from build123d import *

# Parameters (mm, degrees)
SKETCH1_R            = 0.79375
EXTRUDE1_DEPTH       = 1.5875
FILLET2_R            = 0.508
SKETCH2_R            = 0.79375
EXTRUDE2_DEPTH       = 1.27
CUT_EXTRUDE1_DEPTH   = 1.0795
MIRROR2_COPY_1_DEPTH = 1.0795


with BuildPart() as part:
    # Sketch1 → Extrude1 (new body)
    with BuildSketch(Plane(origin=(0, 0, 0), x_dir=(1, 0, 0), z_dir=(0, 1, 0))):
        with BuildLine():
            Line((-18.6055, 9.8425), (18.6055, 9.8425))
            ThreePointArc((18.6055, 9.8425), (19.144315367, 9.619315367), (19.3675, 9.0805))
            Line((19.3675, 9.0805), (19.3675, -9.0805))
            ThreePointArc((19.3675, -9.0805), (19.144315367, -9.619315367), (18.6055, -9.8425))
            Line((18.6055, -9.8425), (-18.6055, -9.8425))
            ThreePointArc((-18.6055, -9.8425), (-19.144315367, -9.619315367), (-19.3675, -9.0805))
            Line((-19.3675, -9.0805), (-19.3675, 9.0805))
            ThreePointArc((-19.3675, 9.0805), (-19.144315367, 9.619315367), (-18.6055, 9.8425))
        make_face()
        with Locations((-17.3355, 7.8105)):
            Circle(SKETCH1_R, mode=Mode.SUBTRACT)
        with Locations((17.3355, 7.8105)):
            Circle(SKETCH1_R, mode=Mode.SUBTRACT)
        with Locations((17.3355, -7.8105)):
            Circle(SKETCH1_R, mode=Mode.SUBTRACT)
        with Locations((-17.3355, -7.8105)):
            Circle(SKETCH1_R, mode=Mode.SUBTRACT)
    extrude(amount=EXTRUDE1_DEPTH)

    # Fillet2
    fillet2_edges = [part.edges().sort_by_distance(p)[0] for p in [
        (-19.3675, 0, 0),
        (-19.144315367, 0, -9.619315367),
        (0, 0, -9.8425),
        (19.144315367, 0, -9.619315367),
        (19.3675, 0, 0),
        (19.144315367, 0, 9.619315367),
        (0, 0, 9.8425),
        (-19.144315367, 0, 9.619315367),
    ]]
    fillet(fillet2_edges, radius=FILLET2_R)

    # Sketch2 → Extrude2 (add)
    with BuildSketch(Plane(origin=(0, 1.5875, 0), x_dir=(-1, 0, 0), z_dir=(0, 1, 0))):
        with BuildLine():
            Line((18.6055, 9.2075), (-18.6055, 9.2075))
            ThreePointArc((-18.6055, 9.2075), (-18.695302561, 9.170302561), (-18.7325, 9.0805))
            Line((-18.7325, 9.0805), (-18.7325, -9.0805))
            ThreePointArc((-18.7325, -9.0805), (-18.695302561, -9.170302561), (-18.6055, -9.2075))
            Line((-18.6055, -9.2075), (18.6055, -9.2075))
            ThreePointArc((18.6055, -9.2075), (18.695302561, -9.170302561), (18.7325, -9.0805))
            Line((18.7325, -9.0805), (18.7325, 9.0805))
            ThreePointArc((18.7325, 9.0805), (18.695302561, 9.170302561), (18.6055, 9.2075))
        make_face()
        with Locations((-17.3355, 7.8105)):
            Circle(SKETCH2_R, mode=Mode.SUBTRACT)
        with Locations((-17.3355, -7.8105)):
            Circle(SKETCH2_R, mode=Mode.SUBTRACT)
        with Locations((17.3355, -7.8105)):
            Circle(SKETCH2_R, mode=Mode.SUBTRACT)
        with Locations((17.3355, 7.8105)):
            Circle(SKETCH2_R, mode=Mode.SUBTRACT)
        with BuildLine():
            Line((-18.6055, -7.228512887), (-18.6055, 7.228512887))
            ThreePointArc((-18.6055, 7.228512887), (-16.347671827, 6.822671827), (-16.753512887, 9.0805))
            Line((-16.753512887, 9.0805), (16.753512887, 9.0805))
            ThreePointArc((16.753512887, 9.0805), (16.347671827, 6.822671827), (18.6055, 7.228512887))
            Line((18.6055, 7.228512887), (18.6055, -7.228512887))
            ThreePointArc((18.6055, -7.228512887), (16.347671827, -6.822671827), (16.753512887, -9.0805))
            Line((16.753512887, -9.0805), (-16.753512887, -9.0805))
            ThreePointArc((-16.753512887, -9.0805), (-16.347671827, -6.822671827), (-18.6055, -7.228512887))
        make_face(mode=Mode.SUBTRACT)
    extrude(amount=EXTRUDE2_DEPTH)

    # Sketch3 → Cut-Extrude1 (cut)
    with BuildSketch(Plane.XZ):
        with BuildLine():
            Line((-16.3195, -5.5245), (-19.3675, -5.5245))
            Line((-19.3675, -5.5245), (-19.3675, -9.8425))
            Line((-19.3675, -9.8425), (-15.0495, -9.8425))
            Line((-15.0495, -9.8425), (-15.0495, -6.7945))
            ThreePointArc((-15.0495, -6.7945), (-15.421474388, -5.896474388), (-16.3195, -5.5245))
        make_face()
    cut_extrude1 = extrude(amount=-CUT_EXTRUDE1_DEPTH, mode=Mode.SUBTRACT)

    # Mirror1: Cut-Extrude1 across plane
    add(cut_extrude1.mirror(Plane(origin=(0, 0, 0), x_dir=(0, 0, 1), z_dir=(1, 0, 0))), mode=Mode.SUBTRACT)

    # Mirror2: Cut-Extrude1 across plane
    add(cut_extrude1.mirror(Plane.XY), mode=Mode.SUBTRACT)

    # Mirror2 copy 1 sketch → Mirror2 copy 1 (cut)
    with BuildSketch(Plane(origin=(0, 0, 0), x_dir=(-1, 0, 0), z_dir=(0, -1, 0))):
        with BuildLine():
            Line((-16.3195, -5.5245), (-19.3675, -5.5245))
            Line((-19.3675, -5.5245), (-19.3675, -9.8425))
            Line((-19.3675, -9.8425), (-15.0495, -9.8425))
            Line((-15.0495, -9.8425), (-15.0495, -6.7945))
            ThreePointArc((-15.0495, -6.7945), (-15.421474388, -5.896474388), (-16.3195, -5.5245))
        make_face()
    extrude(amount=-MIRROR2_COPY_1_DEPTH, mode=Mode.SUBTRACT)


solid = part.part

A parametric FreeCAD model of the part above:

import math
import FreeCAD as App
import Part
import Sketcher
Q = App.Units.Quantity


def edges_at(feature, points):
    """Names of the edges that pass closest to the given points."""
    edges = feature.Shape.Edges
    near = lambda p: min(range(len(edges)), key=lambda i: edges[i].distToShape(Part.Vertex(*p))[0])
    return sorted({f"Edge{near(p) + 1}" for p in points})

doc = App.newDocument("Part")
body = doc.addObject("PartDesign::Body", "Body")

# Sketch on XZ plane
sketch1 = body.newObject("Sketcher::SketchObject", "Sketch")
sketch1.AttachmentSupport = (doc.getObject("XZ_Plane"), [""])
sketch1.MapMode = "FlatFace"
sketch1.addGeometry([
    Part.LineSegment(App.Vector(18.6055, -9.8425, 0), App.Vector(-18.6055, -9.8425, 0)),  # 0
    Part.ArcOfCircle(Part.Circle(App.Vector(-18.6055, -9.0805, 0), App.Vector(0, 0, 1), 0.762), math.radians(-180), math.radians(-90)),  # 1
    Part.LineSegment(App.Vector(-19.3675, -9.0805, 0), App.Vector(-19.3675, 9.0805, 0)),  # 2
    Part.ArcOfCircle(Part.Circle(App.Vector(-18.6055, 9.0805, 0), App.Vector(0, 0, 1), 0.762), math.radians(90), math.radians(180)),  # 3
    Part.LineSegment(App.Vector(-18.6055, 9.8425, 0), App.Vector(18.6055, 9.8425, 0)),  # 4
    Part.ArcOfCircle(Part.Circle(App.Vector(18.6055, 9.0805, 0), App.Vector(0, 0, 1), 0.762), math.radians(0), math.radians(90)),  # 5
    Part.LineSegment(App.Vector(19.3675, 9.0805, 0), App.Vector(19.3675, -9.0805, 0)),  # 6
    Part.ArcOfCircle(Part.Circle(App.Vector(18.6055, -9.0805, 0), App.Vector(0, 0, 1), 0.762), math.radians(-90), math.radians(0)),  # 7
    Part.Circle(App.Vector(17.3355, 7.8105, 0), App.Vector(0, 0, 1), 0.79375),  # 8
    Part.Circle(App.Vector(-17.3355, 7.8105, 0), App.Vector(0, 0, 1), 0.79375),  # 9
    Part.Circle(App.Vector(17.3355, -7.8105, 0), App.Vector(0, 0, 1), 0.79375),  # 10
    Part.Circle(App.Vector(-17.3355, -7.8105, 0), App.Vector(0, 0, 1), 0.79375),  # 11
], False)
sketch1.addConstraint([
    Sketcher.Constraint("Tangent", 0, 2, 1, 2),
    Sketcher.Constraint("Tangent", 1, 1, 2, 1),
    Sketcher.Constraint("Tangent", 2, 2, 3, 2),
    Sketcher.Constraint("Tangent", 3, 1, 4, 1),
    Sketcher.Constraint("Tangent", 4, 2, 5, 2),
    Sketcher.Constraint("Tangent", 5, 1, 6, 1),
    Sketcher.Constraint("Tangent", 6, 2, 7, 2),
    Sketcher.Constraint("Tangent", 7, 1, 0, 1),
    Sketcher.Constraint("Horizontal", 0),
    Sketcher.Constraint("Vertical", 2),
    Sketcher.Constraint("Horizontal", 4),
    Sketcher.Constraint("Vertical", 6),
    Sketcher.Constraint("Equal", 1, 3),
    Sketcher.Constraint("Equal", 3, 5),
    Sketcher.Constraint("Equal", 5, 7),
    Sketcher.Constraint("Equal", 8, 9),
    Sketcher.Constraint("Equal", 9, 10),
    Sketcher.Constraint("Equal", 10, 11),
    Sketcher.Constraint("Symmetric", 1, 3, 5, 3, -1, 1),
    Sketcher.Constraint("Symmetric", 9, 3, 10, 3, -1, 1),
    Sketcher.Constraint("Symmetric", 8, 3, 11, 3, -1, 1),
    Sketcher.Constraint("Symmetric", 8, 3, 9, 3, -2),
    Sketcher.Constraint("Radius", 1, Q("0.03 in")),
    Sketcher.Constraint("Diameter", 8, Q("0.0625 in")),
    Sketcher.Constraint("DistanceX", 0, 2, 0, 1, Q("1.465 in")),
    Sketcher.Constraint("DistanceY", 2, 1, 2, 2, Q("0.715 in")),
    Sketcher.Constraint("DistanceX", 8, 3, 5, 3, Q("0.05 in")),
    Sketcher.Constraint("DistanceY", 8, 3, 5, 3, Q("0.05 in")),
])
pad1 = body.newObject("PartDesign::Pad", "Pad")
pad1.Profile = sketch1
pad1.Length = Q("0.0625 in")
pad1.Reversed = True
doc.recompute()

fillet = body.newObject("PartDesign::Fillet", "Fillet")
fillet.Base = (pad1, edges_at(pad1, [
    (-19.367, 0, 0),
    (-19.144, 0, -9.619),
    (0, 0, -9.842),
    (19.144, 0, -9.619),
    (19.367, 0, 0),
    (19.144, 0, 9.619),
    (0, 0, 9.842),
    (-19.144, 0, 9.619),
]))
fillet.Radius = Q("0.02 in")

# Sketch on XZ plane
sketch2 = body.newObject("Sketcher::SketchObject", "Sketch001")
sketch2.AttachmentSupport = (doc.getObject("XZ_Plane"), [""])
sketch2.MapMode = "FlatFace"
sketch2.AttachmentOffset = App.Placement(App.Vector(0, 0, -0.0625 * 25.4), App.Rotation())
sketch2.addGeometry([
    Part.LineSegment(App.Vector(-18.6055, 9.2075, 0), App.Vector(18.6055, 9.2075, 0)),  # 0
    Part.ArcOfCircle(Part.Circle(App.Vector(18.6055, 9.0805, 0), App.Vector(0, 0, 1), 0.127), math.radians(0), math.radians(90)),  # 1
    Part.LineSegment(App.Vector(18.7325, 9.0805, 0), App.Vector(18.7325, -9.0805, 0)),  # 2
    Part.ArcOfCircle(Part.Circle(App.Vector(18.6055, -9.0805, 0), App.Vector(0, 0, 1), 0.127), math.radians(-90), math.radians(0)),  # 3
    Part.LineSegment(App.Vector(18.6055, -9.2075, 0), App.Vector(-18.6055, -9.2075, 0)),  # 4
    Part.ArcOfCircle(Part.Circle(App.Vector(-18.6055, -9.0805, 0), App.Vector(0, 0, 1), 0.127), math.radians(-180), math.radians(-90)),  # 5
    Part.LineSegment(App.Vector(-18.7325, -9.0805, 0), App.Vector(-18.7325, 9.0805, 0)),  # 6
    Part.ArcOfCircle(Part.Circle(App.Vector(-18.6055, 9.0805, 0), App.Vector(0, 0, 1), 0.127), math.radians(90), math.radians(180)),  # 7
    Part.Circle(App.Vector(17.3355, -7.8105, 0), App.Vector(0, 0, 1), 0.79375),  # 8
    Part.Circle(App.Vector(-17.3355, -7.8105, 0), App.Vector(0, 0, 1), 0.79375),  # 9
    Part.ArcOfCircle(Part.Circle(App.Vector(17.3355, -7.8105, 0), App.Vector(0, 0, 1), 1.397), math.radians(24.619977), math.radians(245.380023)),  # 10
    Part.LineSegment(App.Vector(18.6055, -7.228513, 0), App.Vector(18.6055, 7.228513, 0)),  # 11
    Part.ArcOfCircle(Part.Circle(App.Vector(17.3355, 7.8105, 0), App.Vector(0, 0, 1), 1.397), math.radians(114.619977), math.radians(335.380023)),  # 12
    Part.LineSegment(App.Vector(16.753513, 9.0805, 0), App.Vector(-16.753513, 9.0805, 0)),  # 13
    Part.ArcOfCircle(Part.Circle(App.Vector(-17.3355, 7.8105, 0), App.Vector(0, 0, 1), 1.397), math.radians(-155.380023), math.radians(65.380023)),  # 14
    Part.LineSegment(App.Vector(-18.6055, 7.228513, 0), App.Vector(-18.6055, -7.228513, 0)),  # 15
    Part.ArcOfCircle(Part.Circle(App.Vector(-17.3355, -7.8105, 0), App.Vector(0, 0, 1), 1.397), math.radians(-65.380023), math.radians(155.380023)),  # 16
    Part.LineSegment(App.Vector(-16.753513, -9.0805, 0), App.Vector(16.753513, -9.0805, 0)),  # 17
    Part.Circle(App.Vector(17.3355, 7.8105, 0), App.Vector(0, 0, 1), 0.79375),  # 18
    Part.Circle(App.Vector(-17.3355, 7.8105, 0), App.Vector(0, 0, 1), 0.79375),  # 19
], False)
sketch2.addConstraint([
    Sketcher.Constraint("Tangent", 0, 2, 1, 2),
    Sketcher.Constraint("Tangent", 1, 1, 2, 1),
    Sketcher.Constraint("Tangent", 2, 2, 3, 2),
    Sketcher.Constraint("Tangent", 3, 1, 4, 1),
    Sketcher.Constraint("Tangent", 4, 2, 5, 2),
    Sketcher.Constraint("Tangent", 5, 1, 6, 1),
    Sketcher.Constraint("Tangent", 6, 2, 7, 2),
    Sketcher.Constraint("Tangent", 7, 1, 0, 1),
    Sketcher.Constraint("Coincident", 10, 1, 11, 1),
    Sketcher.Constraint("Coincident", 11, 2, 12, 2),
    Sketcher.Constraint("Coincident", 12, 1, 13, 1),
    Sketcher.Constraint("Coincident", 13, 2, 14, 2),
    Sketcher.Constraint("Coincident", 14, 1, 15, 1),
    Sketcher.Constraint("Coincident", 15, 2, 16, 2),
    Sketcher.Constraint("Coincident", 16, 1, 17, 1),
    Sketcher.Constraint("Coincident", 17, 2, 10, 2),
    Sketcher.Constraint("Horizontal", 0),
    Sketcher.Constraint("Vertical", 2),
    Sketcher.Constraint("Horizontal", 4),
    Sketcher.Constraint("Vertical", 6),
    Sketcher.Constraint("Vertical", 11),
    Sketcher.Constraint("Horizontal", 13),
    Sketcher.Constraint("Vertical", 15),
    Sketcher.Constraint("Horizontal", 17),
    Sketcher.Constraint("Coincident", 10, 3, 8, 3),
    Sketcher.Constraint("Coincident", 16, 3, 9, 3),
    Sketcher.Constraint("Coincident", 18, 3, 12, 3),
    Sketcher.Constraint("Coincident", 19, 3, 14, 3),
    Sketcher.Constraint("Equal", 1, 3),
    Sketcher.Constraint("Equal", 3, 5),
    Sketcher.Constraint("Equal", 5, 7),
    Sketcher.Constraint("Equal", 8, 9),
    Sketcher.Constraint("Equal", 10, 12),
    Sketcher.Constraint("Equal", 12, 14),
    Sketcher.Constraint("Equal", 14, 16),
    Sketcher.Constraint("Equal", 9, 18),
    Sketcher.Constraint("Equal", 18, 19),
    Sketcher.Constraint("Symmetric", 1, 3, 5, 3, -1, 1),
    Sketcher.Constraint("Symmetric", 9, 3, 12, 3, -1, 1),
    Sketcher.Constraint("Symmetric", 8, 3, 14, 3, -1, 1),
    Sketcher.Constraint("Symmetric", 8, 3, 9, 3, -2),
    Sketcher.Constraint("Horizontal", 6, 2, 12, 1),
    Sketcher.Constraint("Horizontal", 11, 2, 14, 1),
    Sketcher.Constraint("Horizontal", 5, 1, 16, 1),
    Sketcher.Constraint("Vertical", 3, 1, 10, 1),
    Sketcher.Constraint("Diameter", 8, Q("0.0625 in")),
    Sketcher.Constraint("Radius", 1, Q("0.005 in")),
    Sketcher.Constraint("Radius", 10, Q("0.055 in")),
    Sketcher.Constraint("DistanceX", 0, 1, 0, 2, Q("1.465 in")),
    Sketcher.Constraint("DistanceY", 2, 2, 2, 1, Q("0.715 in")),
    Sketcher.Constraint("DistanceX", 8, 3, 3, 3, Q("0.05 in")),
    Sketcher.Constraint("DistanceY", 3, 3, 8, 3, Q("0.05 in")),
])
pad2 = body.newObject("PartDesign::Pad", "Pad001")
pad2.Profile = sketch2
pad2.Length = Q("0.05 in")
pad2.Reversed = True

# Sketch on XZ plane
sketch3 = body.newObject("Sketcher::SketchObject", "Sketch002")
sketch3.AttachmentSupport = (doc.getObject("XZ_Plane"), [""])
sketch3.MapMode = "FlatFace"
sketch3.addGeometry([
    Part.LineSegment(App.Vector(-16.3195, -5.5245, 0), App.Vector(-19.3675, -5.5245, 0)),  # 0
    Part.LineSegment(App.Vector(-19.3675, -5.5245, 0), App.Vector(-19.3675, -9.8425, 0)),  # 1
    Part.LineSegment(App.Vector(-19.3675, -9.8425, 0), App.Vector(-15.0495, -9.8425, 0)),  # 2
    Part.LineSegment(App.Vector(-15.0495, -9.8425, 0), App.Vector(-15.0495, -6.7945, 0)),  # 3
    Part.ArcOfCircle(Part.Circle(App.Vector(-16.3195, -6.7945, 0), App.Vector(0, 0, 1), 1.27), math.radians(0), math.radians(90)),  # 4
], False)
sketch3.addConstraint([
    Sketcher.Constraint("Coincident", 0, 2, 1, 1),
    Sketcher.Constraint("Coincident", 1, 2, 2, 1),
    Sketcher.Constraint("Coincident", 2, 2, 3, 1),
    Sketcher.Constraint("Tangent", 3, 2, 4, 1),
    Sketcher.Constraint("Tangent", 4, 2, 0, 1),
    Sketcher.Constraint("Horizontal", 0),
    Sketcher.Constraint("Vertical", 1),
    Sketcher.Constraint("Horizontal", 2),
    Sketcher.Constraint("Vertical", 3),
    Sketcher.Constraint("Equal", 2, 1),
    Sketcher.Constraint("Radius", 4, Q("0.05 in")),
    Sketcher.Constraint("DistanceX", 0, 2, 0, 1, Q("0.12 in")),
    Sketcher.Constraint("DistanceX", 4, 3, -1, 1, Q("0.6425 in")),
    Sketcher.Constraint("DistanceY", 4, 3, -1, 1, Q("0.2675 in")),
])
pocket1 = body.newObject("PartDesign::Pocket", "Pocket")
pocket1.Profile = sketch3
pocket1.Length = Q("0.0425 in")
doc.recompute()

mirrored = body.newObject("PartDesign::Mirrored", "Mirrored")
mirrored.Originals = [pocket1]
mirrored.MirrorPlane = (doc.getObject("YZ_Plane"), [""])
body.Tip = mirrored
doc.recompute()

mirrored2 = body.newObject("PartDesign::Mirrored", "Mirrored001")
mirrored2.Originals = [pocket1]
mirrored2.MirrorPlane = (doc.getObject("XY_Plane"), [""])
body.Tip = mirrored2

# Sketch on XZ plane
sketch4 = body.newObject("Sketcher::SketchObject", "Sketch003")
sketch4.AttachmentSupport = (doc.getObject("XZ_Plane"), [""])
sketch4.MapMode = "FlatFace"
sketch4.addGeometry([
    Part.LineSegment(App.Vector(16.3195, 5.5245, 0), App.Vector(19.3675, 5.5245, 0)),  # 0
    Part.LineSegment(App.Vector(19.3675, 5.5245, 0), App.Vector(19.3675, 9.8425, 0)),  # 1
    Part.LineSegment(App.Vector(19.3675, 9.8425, 0), App.Vector(15.0495, 9.8425, 0)),  # 2
    Part.LineSegment(App.Vector(15.0495, 9.8425, 0), App.Vector(15.0495, 6.7945, 0)),  # 3
    Part.ArcOfCircle(Part.Circle(App.Vector(16.3195, 6.7945, 0), App.Vector(0, 0, 1), 1.27), math.radians(180), math.radians(270)),  # 4
], False)
sketch4.addConstraint([
    Sketcher.Constraint("Coincident", 0, 2, 1, 1),
    Sketcher.Constraint("Coincident", 1, 2, 2, 1),
    Sketcher.Constraint("Coincident", 2, 2, 3, 1),
    Sketcher.Constraint("Tangent", 3, 2, 4, 1),
    Sketcher.Constraint("Tangent", 4, 2, 0, 1),
    Sketcher.Constraint("Horizontal", 0),
    Sketcher.Constraint("Vertical", 1),
    Sketcher.Constraint("Horizontal", 2),
    Sketcher.Constraint("Vertical", 3),
    Sketcher.Constraint("Equal", 2, 1),
    Sketcher.Constraint("Radius", 4, Q("0.05 in")),
    Sketcher.Constraint("DistanceX", 0, 1, 0, 2, Q("0.12 in")),
    Sketcher.Constraint("DistanceX", -1, 1, 4, 3, Q("0.6425 in")),
    Sketcher.Constraint("DistanceY", -1, 1, 4, 3, Q("0.2675 in")),
])
pocket2 = body.newObject("PartDesign::Pocket", "Pocket001")
pocket2.Profile = sketch4
pocket2.Length = Q("0.0425 in")

doc.recompute()
